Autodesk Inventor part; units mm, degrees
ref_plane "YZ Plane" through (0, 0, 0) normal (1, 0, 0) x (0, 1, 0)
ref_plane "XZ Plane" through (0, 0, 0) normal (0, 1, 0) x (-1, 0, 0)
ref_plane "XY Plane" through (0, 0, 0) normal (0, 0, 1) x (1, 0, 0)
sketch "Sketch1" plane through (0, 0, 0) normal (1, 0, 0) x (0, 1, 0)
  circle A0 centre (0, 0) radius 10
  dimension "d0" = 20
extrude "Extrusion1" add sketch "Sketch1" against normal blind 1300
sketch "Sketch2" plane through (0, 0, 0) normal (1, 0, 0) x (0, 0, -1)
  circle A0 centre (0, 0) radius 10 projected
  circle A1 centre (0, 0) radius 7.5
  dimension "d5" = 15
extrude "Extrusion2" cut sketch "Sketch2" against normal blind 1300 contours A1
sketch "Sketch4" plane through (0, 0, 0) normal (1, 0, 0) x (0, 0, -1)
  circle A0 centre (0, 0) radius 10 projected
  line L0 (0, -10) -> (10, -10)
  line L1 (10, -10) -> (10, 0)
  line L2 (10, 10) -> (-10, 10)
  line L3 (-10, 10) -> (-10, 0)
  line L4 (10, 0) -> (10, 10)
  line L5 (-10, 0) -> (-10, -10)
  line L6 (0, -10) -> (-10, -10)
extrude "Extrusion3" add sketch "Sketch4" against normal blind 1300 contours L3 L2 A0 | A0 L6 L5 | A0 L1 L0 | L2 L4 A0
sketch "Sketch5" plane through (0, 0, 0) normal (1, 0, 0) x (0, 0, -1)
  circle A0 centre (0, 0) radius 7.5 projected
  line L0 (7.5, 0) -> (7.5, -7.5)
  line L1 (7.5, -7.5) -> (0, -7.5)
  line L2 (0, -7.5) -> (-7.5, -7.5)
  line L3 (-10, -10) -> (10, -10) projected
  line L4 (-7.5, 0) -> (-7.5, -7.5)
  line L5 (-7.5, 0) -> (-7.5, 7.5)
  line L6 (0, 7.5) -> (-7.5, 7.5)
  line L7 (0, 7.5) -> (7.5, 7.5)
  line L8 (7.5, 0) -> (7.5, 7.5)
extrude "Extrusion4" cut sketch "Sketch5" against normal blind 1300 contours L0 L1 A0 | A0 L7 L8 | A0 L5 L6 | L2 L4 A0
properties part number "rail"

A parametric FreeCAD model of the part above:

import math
import FreeCAD as App
import Part
import Sketcher

V = App.Vector
Q = App.Units.Quantity

doc = App.newDocument("Part")
params = doc.addObject("Spreadsheet::Sheet", "Params")
for row, (alias, value) in enumerate([
    ("sketch1_diameter", "20 mm"),
    ("pad1_length", "1300 mm"),
    ("sketch2_diameter", "15 mm"),
    ("pocket1_length", "1300 mm"),
    ("sketch3_radius", "10 mm"),
    ("pad2_length", "1300 mm"),
    ("sketch4_radius", "7.5 mm"),
    ("pocket2_length", "1300 mm"),
], start=1):
    params.set(f"A{row}", alias)
    params.set(f"B{row}", "=" + value)
    params.setAlias(f"B{row}", alias)

body = doc.addObject("PartDesign::Body", "Body")

# Sketch on YZ plane
sketch1 = doc.addObject("Sketcher::SketchObject", "Sketch")
body.addObject(sketch1)
sketch1.AttachmentSupport = (doc.YZ_Plane, [""])
sketch1.MapMode = "FlatFace"
sketch1.addGeometry(Part.Circle(V(0, 0, 0), V(0, 0, 1), 10), False)
sketch1.addConstraint(Sketcher.Constraint("Coincident", 0, 3, -1, 1))
sketch1.addConstraint(Sketcher.Constraint("Diameter", 0, Q("20 mm")))
sketch1.setExpression("Constraints[1]", "Params.sketch1_diameter")
pad1 = doc.addObject("PartDesign::Pad", "Pad")
body.addObject(pad1)
pad1.Profile = sketch1
pad1.setExpression("Length", "Params.pad1_length")
pad1.Reversed = True

# Sketch on YZ plane
sketch2 = doc.addObject("Sketcher::SketchObject", "Sketch001")
body.addObject(sketch2)
sketch2.AttachmentSupport = (doc.YZ_Plane, [""])
sketch2.MapMode = "FlatFace"
sketch2.addGeometry(Part.Circle(V(0, 0, 0), V(0, 0, 1), 8), False)
sketch2.addConstraint(Sketcher.Constraint("Coincident", 0, 3, -1, 1))
sketch2.addConstraint(Sketcher.Constraint("Diameter", 0, Q("15 mm")))
sketch2.setExpression("Constraints[1]", "Params.sketch2_diameter")
pocket1 = doc.addObject("PartDesign::Pocket", "Pocket")
body.addObject(pocket1)
pocket1.Profile = sketch2
pocket1.setExpression("Length", "Params.pocket1_length")

# Sketch on YZ plane
sketch3 = doc.addObject("Sketcher::SketchObject", "Sketch002")
body.addObject(sketch3)
sketch3.AttachmentSupport = (doc.YZ_Plane, [""])
sketch3.MapMode = "FlatFace"
sketch3.addGeometry(Part.LineSegment(V(10, 10, 0), V(0, 10, 0)), False)
sketch3.addGeometry(Part.ArcOfCircle(Part.Circle(V(0, 0, 0), V(0, 0, 1), 10), math.radians(0), math.radians(90)), False)
sketch3.addGeometry(Part.LineSegment(V(10, 0, 0), V(10, 10, 0)), False)
sketch3.addGeometry(Part.ArcOfCircle(Part.Circle(V(0, 0, 0), V(0, 0, 1), 10), math.radians(90), math.radians(180)), False)
sketch3.addGeometry(Part.LineSegment(V(0, 10, 0), V(-10, 10, 0)), False)
sketch3.addGeometry(Part.LineSegment(V(-10, 10, 0), V(-10, 0, 0)), False)
sketch3.addGeometry(Part.ArcOfCircle(Part.Circle(V(0, 0, 0), V(0, 0, 1), 10), math.radians(180), math.radians(270)), False)
sketch3.addGeometry(Part.LineSegment(V(-10, 0, 0), V(-10, -10, 0)), False)
sketch3.addGeometry(Part.LineSegment(V(-10, -10, 0), V(0, -10, 0)), False)
sketch3.addGeometry(Part.LineSegment(V(10, -10, 0), V(10, 0, 0)), False)
sketch3.addGeometry(Part.ArcOfCircle(Part.Circle(V(0, 0, 0), V(0, 0, 1), 10), math.radians(-90), math.radians(0)), False)
sketch3.addGeometry(Part.LineSegment(V(0, -10, 0), V(10, -10, 0)), False)
sketch3.addConstraint(Sketcher.Constraint("Tangent", 0, 2, 1, 2))
sketch3.addConstraint(Sketcher.Constraint("Tangent", 1, 1, 2, 1))
sketch3.addConstraint(Sketcher.Constraint("Coincident", 2, 2, 0, 1))
sketch3.addConstraint(Sketcher.Constraint("Tangent", 3, 1, 4, 1))
sketch3.addConstraint(Sketcher.Constraint("Coincident", 4, 2, 5, 1))
sketch3.addConstraint(Sketcher.Constraint("Tangent", 5, 2, 3, 2))
sketch3.addConstraint(Sketcher.Constraint("Tangent", 6, 1, 7, 1))
sketch3.addConstraint(Sketcher.Constraint("Coincident", 7, 2, 8, 1))
sketch3.addConstraint(Sketcher.Constraint("Tangent", 8, 2, 6, 2))
sketch3.addConstraint(Sketcher.Constraint("Tangent", 9, 2, 10, 2))
sketch3.addConstraint(Sketcher.Constraint("Tangent", 10, 1, 11, 1))
sketch3.addConstraint(Sketcher.Constraint("Coincident", 11, 2, 9, 1))
sketch3.addConstraint(Sketcher.Constraint("Horizontal", 0))
sketch3.addConstraint(Sketcher.Constraint("Vertical", 2))
sketch3.addConstraint(Sketcher.Constraint("Horizontal", 4))
sketch3.addConstraint(Sketcher.Constraint("Vertical", 5))
sketch3.addConstraint(Sketcher.Constraint("Vertical", 7))
sketch3.addConstraint(Sketcher.Constraint("Horizontal", 8))
sketch3.addConstraint(Sketcher.Constraint("Vertical", 9))
sketch3.addConstraint(Sketcher.Constraint("Horizontal", 11))
sketch3.addConstraint(Sketcher.Constraint("Coincident", 1, 3, -1, 1))
sketch3.addConstraint(Sketcher.Constraint("Coincident", 3, 3, -1, 1))
sketch3.addConstraint(Sketcher.Constraint("Coincident", 6, 3, -1, 1))
sketch3.addConstraint(Sketcher.Constraint("Coincident", 10, 3, -1, 1))
sketch3.addConstraint(Sketcher.Constraint("Equal", 1, 3))
sketch3.addConstraint(Sketcher.Constraint("Equal", 3, 6))
sketch3.addConstraint(Sketcher.Constraint("Equal", 6, 10))
sketch3.addConstraint(Sketcher.Constraint("Radius", 1, Q("10 mm")))
sketch3.setExpression("Constraints[27]", "Params.sketch3_radius")
pad2 = doc.addObject("PartDesign::Pad", "Pad001")
body.addObject(pad2)
pad2.Profile = sketch3
pad2.setExpression("Length", "Params.pad2_length")
pad2.Reversed = True

# Sketch on YZ plane
sketch4 = doc.addObject("Sketcher::SketchObject", "Sketch003")
body.addObject(sketch4)
sketch4.AttachmentSupport = (doc.YZ_Plane, [""])
sketch4.MapMode = "FlatFace"
sketch4.addGeometry(Part.LineSegment(V(-8, -8, 0), V(0, -8, 0)), False)
sketch4.addGeometry(Part.ArcOfCircle(Part.Circle(V(0, 0, 0), V(0, 0, 1), 8), math.radians(180), math.radians(270)), False)
sketch4.addGeometry(Part.LineSegment(V(-8, 0, 0), V(-8, -8, 0)), False)
sketch4.addGeometry(Part.ArcOfCircle(Part.Circle(V(0, 0, 0), V(0, 0, 1), 8), math.radians(-90), math.radians(0)), False)
sketch4.addGeometry(Part.LineSegment(V(0, -8, 0), V(8, -8, 0)), False)
sketch4.addGeometry(Part.LineSegment(V(8, -8, 0), V(8, 0, 0)), False)
sketch4.addGeometry(Part.ArcOfCircle(Part.Circle(V(0, 0, 0), V(0, 0, 1), 8), math.radians(0), math.radians(90)), False)
sketch4.addGeometry(Part.LineSegment(V(8, 0, 0), V(8, 8, 0)), False)
sketch4.addGeometry(Part.LineSegment(V(8, 8, 0), V(0, 8, 0)), False)
sketch4.addGeometry(Part.LineSegment(V(-8, 8, 0), V(-8, 0, 0)), False)
sketch4.addGeometry(Part.ArcOfCircle(Part.Circle(V(0, 0, 0), V(0, 0, 1), 8), math.radians(90), math.radians(180)), False)
sketch4.addGeometry(Part.LineSegment(V(0, 8, 0), V(-8, 8, 0)), False)
sketch4.addConstraint(Sketcher.Constraint("Tangent", 0, 2, 1, 2))
sketch4.addConstraint(Sketcher.Constraint("Tangent", 1, 1, 2, 1))
sketch4.addConstraint(Sketcher.Constraint("Coincident", 2, 2, 0, 1))
sketch4.addConstraint(Sketcher.Constraint("Tangent", 3, 1, 4, 1))
sketch4.addConstraint(Sketcher.Constraint("Coincident", 4, 2, 5, 1))
sketch4.addConstraint(Sketcher.Constraint("Tangent", 5, 2, 3, 2))
sketch4.addConstraint(Sketcher.Constraint("Tangent", 6, 1, 7, 1))
sketch4.addConstraint(Sketcher.Constraint("Coincident", 7, 2, 8, 1))
sketch4.addConstraint(Sketcher.Constraint("Tangent", 8, 2, 6, 2))
sketch4.addConstraint(Sketcher.Constraint("Tangent", 9, 2, 10, 2))
sketch4.addConstraint(Sketcher.Constraint("Tangent", 10, 1, 11, 1))
sketch4.addConstraint(Sketcher.Constraint("Coincident", 11, 2, 9, 1))
sketch4.addConstraint(Sketcher.Constraint("Horizontal", 0))
sketch4.addConstraint(Sketcher.Constraint("Vertical", 2))
sketch4.addConstraint(Sketcher.Constraint("Horizontal", 4))
sketch4.addConstraint(Sketcher.Constraint("Vertical", 5))
sketch4.addConstraint(Sketcher.Constraint("Vertical", 7))
sketch4.addConstraint(Sketcher.Constraint("Horizontal", 8))
sketch4.addConstraint(Sketcher.Constraint("Vertical", 9))
sketch4.addConstraint(Sketcher.Constraint("Horizontal", 11))
sketch4.addConstraint(Sketcher.Constraint("Coincident", 1, 3, -1, 1))
sketch4.addConstraint(Sketcher.Constraint("Coincident", 3, 3, -1, 1))
sketch4.addConstraint(Sketcher.Constraint("Coincident", 6, 3, -1, 1))
sketch4.addConstraint(Sketcher.Constraint("Coincident", 10, 3, -1, 1))
sketch4.addConstraint(Sketcher.Constraint("Equal", 1, 3))
sketch4.addConstraint(Sketcher.Constraint("Equal", 3, 6))
sketch4.addConstraint(Sketcher.Constraint("Equal", 6, 10))
sketch4.addConstraint(Sketcher.Constraint("Radius", 1, Q("7.5 mm")))
sketch4.setExpression("Constraints[27]", "Params.sketch4_radius")
pocket2 = doc.addObject("PartDesign::Pocket", "Pocket001")
body.addObject(pocket2)
pocket2.Profile = sketch4
pocket2.setExpression("Length", "Params.pocket2_length")

doc.recompute()
